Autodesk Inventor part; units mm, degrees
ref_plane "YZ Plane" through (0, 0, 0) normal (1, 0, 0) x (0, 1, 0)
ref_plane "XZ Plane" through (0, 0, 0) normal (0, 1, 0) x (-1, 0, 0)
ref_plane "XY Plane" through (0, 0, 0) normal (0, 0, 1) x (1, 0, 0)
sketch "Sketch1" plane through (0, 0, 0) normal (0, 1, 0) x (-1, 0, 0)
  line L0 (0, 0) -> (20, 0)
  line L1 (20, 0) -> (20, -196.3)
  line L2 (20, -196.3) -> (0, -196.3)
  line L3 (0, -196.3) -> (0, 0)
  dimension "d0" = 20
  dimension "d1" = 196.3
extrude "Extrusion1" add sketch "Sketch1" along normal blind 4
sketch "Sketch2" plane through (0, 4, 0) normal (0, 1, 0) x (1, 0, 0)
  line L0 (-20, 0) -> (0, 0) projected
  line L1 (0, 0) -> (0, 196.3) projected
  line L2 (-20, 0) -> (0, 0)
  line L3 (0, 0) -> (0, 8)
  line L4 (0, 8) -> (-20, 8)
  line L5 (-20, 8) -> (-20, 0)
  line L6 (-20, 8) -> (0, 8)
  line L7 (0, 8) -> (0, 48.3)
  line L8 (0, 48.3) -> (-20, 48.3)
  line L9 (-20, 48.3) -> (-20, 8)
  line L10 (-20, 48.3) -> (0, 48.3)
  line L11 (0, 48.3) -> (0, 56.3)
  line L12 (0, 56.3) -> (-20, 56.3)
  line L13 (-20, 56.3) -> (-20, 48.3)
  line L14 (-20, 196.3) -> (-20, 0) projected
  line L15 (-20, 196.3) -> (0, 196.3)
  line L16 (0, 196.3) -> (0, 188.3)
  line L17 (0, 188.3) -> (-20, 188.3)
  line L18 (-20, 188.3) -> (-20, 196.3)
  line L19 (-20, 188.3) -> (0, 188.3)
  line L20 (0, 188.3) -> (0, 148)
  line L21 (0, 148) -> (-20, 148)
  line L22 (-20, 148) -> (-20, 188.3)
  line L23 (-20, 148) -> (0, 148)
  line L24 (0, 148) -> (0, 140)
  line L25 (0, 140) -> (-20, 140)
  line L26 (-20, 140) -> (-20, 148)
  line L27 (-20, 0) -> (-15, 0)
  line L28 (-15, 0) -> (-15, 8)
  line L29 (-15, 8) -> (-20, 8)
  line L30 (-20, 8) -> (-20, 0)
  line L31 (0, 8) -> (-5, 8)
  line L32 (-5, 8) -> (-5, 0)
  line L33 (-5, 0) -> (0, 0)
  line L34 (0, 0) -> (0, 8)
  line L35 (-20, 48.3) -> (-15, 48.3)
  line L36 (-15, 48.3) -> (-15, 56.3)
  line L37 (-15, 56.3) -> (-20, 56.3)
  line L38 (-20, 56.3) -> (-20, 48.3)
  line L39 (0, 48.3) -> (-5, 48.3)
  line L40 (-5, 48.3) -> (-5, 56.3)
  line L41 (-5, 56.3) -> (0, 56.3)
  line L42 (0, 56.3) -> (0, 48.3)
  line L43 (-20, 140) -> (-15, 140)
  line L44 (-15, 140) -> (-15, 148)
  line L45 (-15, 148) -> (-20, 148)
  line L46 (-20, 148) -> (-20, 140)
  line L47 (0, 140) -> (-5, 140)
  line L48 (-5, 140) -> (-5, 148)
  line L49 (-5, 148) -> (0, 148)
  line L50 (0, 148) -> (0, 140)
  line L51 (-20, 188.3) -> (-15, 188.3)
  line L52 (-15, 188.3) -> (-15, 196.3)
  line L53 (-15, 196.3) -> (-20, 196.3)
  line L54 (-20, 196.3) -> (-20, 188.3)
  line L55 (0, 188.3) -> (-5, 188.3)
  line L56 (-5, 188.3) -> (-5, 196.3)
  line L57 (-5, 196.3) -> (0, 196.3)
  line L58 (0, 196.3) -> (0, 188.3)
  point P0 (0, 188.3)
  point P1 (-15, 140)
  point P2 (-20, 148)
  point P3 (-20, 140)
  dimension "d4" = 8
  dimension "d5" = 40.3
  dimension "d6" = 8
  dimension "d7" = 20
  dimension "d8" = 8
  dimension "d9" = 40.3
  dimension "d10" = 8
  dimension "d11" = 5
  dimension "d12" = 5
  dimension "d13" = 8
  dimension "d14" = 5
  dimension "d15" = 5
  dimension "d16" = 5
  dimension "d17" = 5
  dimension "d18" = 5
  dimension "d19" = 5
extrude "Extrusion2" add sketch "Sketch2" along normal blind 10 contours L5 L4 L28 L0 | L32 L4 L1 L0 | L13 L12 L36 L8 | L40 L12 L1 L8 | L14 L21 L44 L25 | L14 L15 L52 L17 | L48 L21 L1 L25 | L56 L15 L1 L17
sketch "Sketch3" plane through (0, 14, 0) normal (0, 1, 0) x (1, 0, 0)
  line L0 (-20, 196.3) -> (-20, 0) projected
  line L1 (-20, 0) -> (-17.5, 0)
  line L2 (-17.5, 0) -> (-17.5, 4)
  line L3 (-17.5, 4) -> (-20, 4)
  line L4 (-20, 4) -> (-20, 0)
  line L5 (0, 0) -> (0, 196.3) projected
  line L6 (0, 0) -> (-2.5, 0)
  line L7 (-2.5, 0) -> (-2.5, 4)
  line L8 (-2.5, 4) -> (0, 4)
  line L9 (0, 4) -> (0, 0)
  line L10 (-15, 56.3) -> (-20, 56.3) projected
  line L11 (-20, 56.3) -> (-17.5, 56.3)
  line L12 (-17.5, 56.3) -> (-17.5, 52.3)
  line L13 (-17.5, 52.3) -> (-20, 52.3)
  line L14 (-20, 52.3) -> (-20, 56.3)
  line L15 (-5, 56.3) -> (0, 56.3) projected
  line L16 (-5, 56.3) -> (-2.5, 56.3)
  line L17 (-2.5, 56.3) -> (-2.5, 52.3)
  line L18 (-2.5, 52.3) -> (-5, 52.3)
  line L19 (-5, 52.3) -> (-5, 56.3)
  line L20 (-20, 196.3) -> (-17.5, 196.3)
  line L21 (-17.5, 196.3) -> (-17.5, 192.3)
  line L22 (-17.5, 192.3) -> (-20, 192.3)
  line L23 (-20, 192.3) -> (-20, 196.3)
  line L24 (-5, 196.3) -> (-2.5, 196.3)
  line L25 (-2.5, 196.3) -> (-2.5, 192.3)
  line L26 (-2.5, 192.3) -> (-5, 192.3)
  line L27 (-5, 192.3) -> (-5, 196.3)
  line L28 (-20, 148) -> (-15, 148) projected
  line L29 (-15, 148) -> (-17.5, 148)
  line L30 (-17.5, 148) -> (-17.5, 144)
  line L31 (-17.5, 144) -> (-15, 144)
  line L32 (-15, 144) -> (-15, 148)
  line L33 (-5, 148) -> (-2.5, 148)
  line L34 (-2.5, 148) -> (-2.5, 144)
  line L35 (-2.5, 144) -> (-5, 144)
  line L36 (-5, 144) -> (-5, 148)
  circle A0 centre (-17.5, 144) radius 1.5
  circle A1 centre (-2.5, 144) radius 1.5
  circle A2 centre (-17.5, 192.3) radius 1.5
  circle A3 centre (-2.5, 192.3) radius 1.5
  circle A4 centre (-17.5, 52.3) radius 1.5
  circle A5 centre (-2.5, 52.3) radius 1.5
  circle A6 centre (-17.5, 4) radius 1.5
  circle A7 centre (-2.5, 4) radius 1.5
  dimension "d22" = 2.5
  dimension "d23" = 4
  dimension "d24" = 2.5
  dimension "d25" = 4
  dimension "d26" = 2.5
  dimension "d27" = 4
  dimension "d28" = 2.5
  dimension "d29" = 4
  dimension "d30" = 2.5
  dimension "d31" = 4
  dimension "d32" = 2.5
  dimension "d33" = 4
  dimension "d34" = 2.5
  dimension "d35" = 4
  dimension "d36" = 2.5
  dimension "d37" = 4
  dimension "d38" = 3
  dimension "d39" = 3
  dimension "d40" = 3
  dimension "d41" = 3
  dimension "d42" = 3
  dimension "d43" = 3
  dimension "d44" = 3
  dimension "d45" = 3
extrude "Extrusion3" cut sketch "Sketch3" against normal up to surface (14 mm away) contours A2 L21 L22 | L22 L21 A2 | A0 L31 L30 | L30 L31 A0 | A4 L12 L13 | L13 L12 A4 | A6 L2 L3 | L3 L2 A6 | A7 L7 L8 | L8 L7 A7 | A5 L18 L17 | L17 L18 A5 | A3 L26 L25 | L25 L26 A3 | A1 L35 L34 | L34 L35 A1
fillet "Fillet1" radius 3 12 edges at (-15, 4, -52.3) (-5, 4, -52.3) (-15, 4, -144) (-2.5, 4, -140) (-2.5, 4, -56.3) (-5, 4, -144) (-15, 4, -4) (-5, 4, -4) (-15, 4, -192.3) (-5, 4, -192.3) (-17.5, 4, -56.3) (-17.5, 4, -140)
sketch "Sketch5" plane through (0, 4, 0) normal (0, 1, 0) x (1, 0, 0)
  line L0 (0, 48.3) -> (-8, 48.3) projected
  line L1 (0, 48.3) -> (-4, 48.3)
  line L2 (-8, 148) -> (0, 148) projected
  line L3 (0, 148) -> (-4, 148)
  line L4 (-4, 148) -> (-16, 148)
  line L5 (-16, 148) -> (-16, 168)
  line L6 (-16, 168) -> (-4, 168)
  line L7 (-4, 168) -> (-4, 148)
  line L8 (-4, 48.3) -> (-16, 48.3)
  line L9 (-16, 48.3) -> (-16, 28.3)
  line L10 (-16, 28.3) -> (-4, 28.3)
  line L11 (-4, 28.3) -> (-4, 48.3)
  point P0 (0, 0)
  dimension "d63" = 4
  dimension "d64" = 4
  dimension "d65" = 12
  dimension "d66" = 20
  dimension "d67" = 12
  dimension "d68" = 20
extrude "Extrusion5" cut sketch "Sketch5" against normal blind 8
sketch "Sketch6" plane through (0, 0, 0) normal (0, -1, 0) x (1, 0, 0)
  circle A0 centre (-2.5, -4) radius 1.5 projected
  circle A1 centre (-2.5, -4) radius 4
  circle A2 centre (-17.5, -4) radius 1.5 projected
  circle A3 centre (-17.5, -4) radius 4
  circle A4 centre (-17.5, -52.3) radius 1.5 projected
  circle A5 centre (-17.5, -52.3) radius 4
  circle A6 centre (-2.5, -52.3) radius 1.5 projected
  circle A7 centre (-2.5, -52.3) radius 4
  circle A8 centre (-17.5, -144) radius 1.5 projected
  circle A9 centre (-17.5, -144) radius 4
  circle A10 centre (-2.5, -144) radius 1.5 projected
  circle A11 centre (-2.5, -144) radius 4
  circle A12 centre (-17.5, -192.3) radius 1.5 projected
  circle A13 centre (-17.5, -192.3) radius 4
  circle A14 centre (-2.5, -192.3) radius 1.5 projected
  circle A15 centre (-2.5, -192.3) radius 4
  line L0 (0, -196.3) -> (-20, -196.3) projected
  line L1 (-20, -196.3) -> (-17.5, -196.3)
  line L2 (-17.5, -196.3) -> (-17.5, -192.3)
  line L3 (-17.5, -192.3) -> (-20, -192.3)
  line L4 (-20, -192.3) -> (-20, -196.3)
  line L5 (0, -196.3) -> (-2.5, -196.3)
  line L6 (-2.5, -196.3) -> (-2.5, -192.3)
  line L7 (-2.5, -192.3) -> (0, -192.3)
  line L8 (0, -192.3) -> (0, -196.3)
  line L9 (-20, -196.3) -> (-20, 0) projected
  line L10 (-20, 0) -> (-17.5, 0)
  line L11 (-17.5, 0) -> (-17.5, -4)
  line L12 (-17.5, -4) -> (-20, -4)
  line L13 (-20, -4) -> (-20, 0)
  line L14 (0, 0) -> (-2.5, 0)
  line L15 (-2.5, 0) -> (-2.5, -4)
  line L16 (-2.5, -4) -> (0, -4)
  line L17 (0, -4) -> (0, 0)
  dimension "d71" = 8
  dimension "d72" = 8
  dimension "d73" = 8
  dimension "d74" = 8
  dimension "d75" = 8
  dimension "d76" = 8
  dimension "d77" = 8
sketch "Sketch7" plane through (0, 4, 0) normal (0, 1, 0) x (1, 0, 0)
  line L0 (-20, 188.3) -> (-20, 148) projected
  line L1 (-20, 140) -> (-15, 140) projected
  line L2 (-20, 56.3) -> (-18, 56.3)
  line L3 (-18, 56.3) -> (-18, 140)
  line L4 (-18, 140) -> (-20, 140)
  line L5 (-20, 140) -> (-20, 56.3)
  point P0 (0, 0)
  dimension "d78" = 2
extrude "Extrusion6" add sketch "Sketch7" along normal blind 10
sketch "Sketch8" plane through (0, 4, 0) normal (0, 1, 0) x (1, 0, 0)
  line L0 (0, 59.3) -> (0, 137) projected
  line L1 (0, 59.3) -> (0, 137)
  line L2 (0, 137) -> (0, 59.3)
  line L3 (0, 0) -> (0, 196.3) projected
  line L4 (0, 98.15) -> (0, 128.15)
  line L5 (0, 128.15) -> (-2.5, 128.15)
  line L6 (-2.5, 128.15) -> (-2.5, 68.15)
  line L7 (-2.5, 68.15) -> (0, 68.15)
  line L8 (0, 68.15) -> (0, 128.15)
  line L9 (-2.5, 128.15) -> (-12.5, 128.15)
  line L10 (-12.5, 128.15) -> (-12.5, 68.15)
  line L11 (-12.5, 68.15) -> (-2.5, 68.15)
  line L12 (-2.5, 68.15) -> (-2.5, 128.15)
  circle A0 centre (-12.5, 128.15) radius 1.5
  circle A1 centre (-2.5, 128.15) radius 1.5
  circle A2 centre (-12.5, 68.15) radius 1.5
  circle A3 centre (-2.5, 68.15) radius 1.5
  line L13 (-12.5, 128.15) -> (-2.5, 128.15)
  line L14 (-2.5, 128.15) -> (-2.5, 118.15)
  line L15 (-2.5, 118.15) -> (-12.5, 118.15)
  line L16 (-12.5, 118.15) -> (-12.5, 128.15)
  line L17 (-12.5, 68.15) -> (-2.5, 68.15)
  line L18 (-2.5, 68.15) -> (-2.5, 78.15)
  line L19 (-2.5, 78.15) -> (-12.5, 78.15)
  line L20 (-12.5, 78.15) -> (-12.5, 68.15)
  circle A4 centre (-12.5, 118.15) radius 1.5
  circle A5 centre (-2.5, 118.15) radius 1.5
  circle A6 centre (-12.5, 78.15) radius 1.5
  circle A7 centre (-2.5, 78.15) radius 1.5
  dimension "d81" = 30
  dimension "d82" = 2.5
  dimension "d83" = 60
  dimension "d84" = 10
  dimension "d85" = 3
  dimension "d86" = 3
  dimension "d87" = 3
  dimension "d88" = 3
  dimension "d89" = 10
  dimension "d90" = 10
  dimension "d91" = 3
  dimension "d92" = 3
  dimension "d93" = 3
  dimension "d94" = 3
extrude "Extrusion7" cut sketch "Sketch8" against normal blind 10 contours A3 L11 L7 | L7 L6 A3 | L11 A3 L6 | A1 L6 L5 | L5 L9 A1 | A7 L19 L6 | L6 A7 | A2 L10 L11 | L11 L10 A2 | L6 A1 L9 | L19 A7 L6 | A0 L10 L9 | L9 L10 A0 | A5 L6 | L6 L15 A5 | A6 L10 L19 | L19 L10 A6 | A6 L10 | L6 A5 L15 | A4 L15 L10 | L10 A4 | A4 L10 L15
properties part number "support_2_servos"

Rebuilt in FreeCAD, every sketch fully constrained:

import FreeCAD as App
import Part
import Sketcher

V = App.Vector
Q = App.Units.Quantity


def edges_at(feature, points):
    """Names of the edges that pass closest to the given points."""
    edges = feature.Shape.Edges
    near = lambda p: min(range(len(edges)), key=lambda i: edges[i].distToShape(Part.Vertex(*p))[0])
    return sorted({f"Edge{near(p) + 1}" for p in points})


def add_polygon(sketch, points):
    """Adds a closed chain of lines whose ends are joined by coincident constraints."""
    first, n = sketch.GeometryCount, len(points)
    for a, b in zip(points, points[1:] + points[:1]):
        sketch.addGeometry(Part.LineSegment(App.Vector(*a, 0), App.Vector(*b, 0)), False)
    for i in range(n):
        sketch.addConstraint(Sketcher.Constraint("Coincident", first + i, 2, first + (i + 1) % n, 1))

doc = App.newDocument("Part")
body = doc.addObject("PartDesign::Body", "Body")

# Sketch on XZ plane
sketch1 = body.newObject("Sketcher::SketchObject", "Sketch")
sketch1.AttachmentSupport = (doc.getObject("XZ_Plane"), [""])
sketch1.MapMode = "FlatFace"
add_polygon(sketch1, [(-20, 0), (0, 0), (0, -196), (-20, -196)])  # lines 0-3
sketch1.addConstraint(Sketcher.Constraint("Horizontal", 0))
sketch1.addConstraint(Sketcher.Constraint("Vertical", 1))
sketch1.addConstraint(Sketcher.Constraint("Horizontal", 2))
sketch1.addConstraint(Sketcher.Constraint("Vertical", 3))
sketch1.addConstraint(Sketcher.Constraint("Coincident", 0, 2, -1, 1))
sketch1.addConstraint(Sketcher.Constraint("DistanceX", 0, 1, 0, 2, Q("20 mm")))
sketch1.addConstraint(Sketcher.Constraint("DistanceY", 1, 2, 1, 1, Q("196.3 mm")))
pad1 = body.newObject("PartDesign::Pad", "Pad")
pad1.Profile = sketch1
pad1.Length = 4
pad1.Reversed = True

# Sketch on XZ plane
sketch2 = body.newObject("Sketcher::SketchObject", "Sketch001")
sketch2.AttachmentSupport = (doc.getObject("XZ_Plane"), [""])
sketch2.MapMode = "FlatFace"
sketch2.AttachmentOffset = App.Placement(V(0, 0, -4), App.Rotation())
add_polygon(sketch2, [(-20, -8), (-20, 0), (-15, 0), (-15, -8)])  # lines 0-3
add_polygon(sketch2, [(-5, -8), (-5, 0), (0, 0), (0, -8)])  # lines 4-7
add_polygon(sketch2, [(-20, -56), (-20, -48), (-15, -48), (-15, -56)])  # lines 8-11
add_polygon(sketch2, [(-5, -56), (-5, -48), (0, -48), (0, -56)])  # lines 12-15
add_polygon(sketch2, [(-20, -148), (-20, -140), (-15, -140), (-15, -148)])  # lines 16-19
add_polygon(sketch2, [(-20, -196), (-20, -188), (-15, -188), (-15, -196)])  # lines 20-23
add_polygon(sketch2, [(-5, -148), (-5, -140), (0, -140), (0, -148)])  # lines 24-27
add_polygon(sketch2, [(-5, -196), (-5, -188), (0, -188), (0, -196)])  # lines 28-31
sketch2.addConstraint(Sketcher.Constraint("Vertical", 0))
sketch2.addConstraint(Sketcher.Constraint("Horizontal", 1))
sketch2.addConstraint(Sketcher.Constraint("Vertical", 2))
sketch2.addConstraint(Sketcher.Constraint("Horizontal", 3))
sketch2.addConstraint(Sketcher.Constraint("Vertical", 4))
sketch2.addConstraint(Sketcher.Constraint("Horizontal", 5))
sketch2.addConstraint(Sketcher.Constraint("Vertical", 6))
sketch2.addConstraint(Sketcher.Constraint("Horizontal", 7))
sketch2.addConstraint(Sketcher.Constraint("Vertical", 8))
sketch2.addConstraint(Sketcher.Constraint("Horizontal", 9))
sketch2.addConstraint(Sketcher.Constraint("Vertical", 10))
sketch2.addConstraint(Sketcher.Constraint("Horizontal", 11))
sketch2.addConstraint(Sketcher.Constraint("Vertical", 12))
sketch2.addConstraint(Sketcher.Constraint("Horizontal", 13))
sketch2.addConstraint(Sketcher.Constraint("Vertical", 14))
sketch2.addConstraint(Sketcher.Constraint("Horizontal", 15))
sketch2.addConstraint(Sketcher.Constraint("Vertical", 16))
sketch2.addConstraint(Sketcher.Constraint("Horizontal", 17))
sketch2.addConstraint(Sketcher.Constraint("Vertical", 18))
sketch2.addConstraint(Sketcher.Constraint("Horizontal", 19))
sketch2.addConstraint(Sketcher.Constraint("Vertical", 20))
sketch2.addConstraint(Sketcher.Constraint("Horizontal", 21))
sketch2.addConstraint(Sketcher.Constraint("Vertical", 22))
sketch2.addConstraint(Sketcher.Constraint("Horizontal", 23))
sketch2.addConstraint(Sketcher.Constraint("Vertical", 24))
sketch2.addConstraint(Sketcher.Constraint("Horizontal", 25))
sketch2.addConstraint(Sketcher.Constraint("Vertical", 26))
sketch2.addConstraint(Sketcher.Constraint("Horizontal", 27))
sketch2.addConstraint(Sketcher.Constraint("Vertical", 28))
sketch2.addConstraint(Sketcher.Constraint("Horizontal", 29))
sketch2.addConstraint(Sketcher.Constraint("Vertical", 30))
sketch2.addConstraint(Sketcher.Constraint("Horizontal", 31))
sketch2.addConstraint(Sketcher.Constraint("Coincident", 5, 2, -1, 1))
sketch2.addConstraint(Sketcher.Constraint("PointOnObject", 0, 2, -1))
sketch2.addConstraint(Sketcher.Constraint("PointOnObject", 13, 2, -2))
sketch2.addConstraint(Sketcher.Constraint("PointOnObject", 25, 2, -2))
sketch2.addConstraint(Sketcher.Constraint("PointOnObject", 29, 2, -2))
sketch2.addConstraint(Sketcher.Constraint("Horizontal", 3, 2, 6, 2))
sketch2.addConstraint(Sketcher.Constraint("Horizontal", 9, 2, 12, 2))
sketch2.addConstraint(Sketcher.Constraint("Horizontal", 11, 2, 14, 2))
sketch2.addConstraint(Sketcher.Constraint("Horizontal", 17, 2, 24, 2))
sketch2.addConstraint(Sketcher.Constraint("Horizontal", 19, 2, 26, 2))
sketch2.addConstraint(Sketcher.Constraint("Horizontal", 21, 2, 28, 2))
sketch2.addConstraint(Sketcher.Constraint("Horizontal", 23, 2, 30, 2))
sketch2.addConstraint(Sketcher.Constraint("Vertical", 3, 2, 8, 2))
sketch2.addConstraint(Sketcher.Constraint("Vertical", 2, 2, 9, 2))
sketch2.addConstraint(Sketcher.Constraint("Vertical", 7, 2, 12, 2))
sketch2.addConstraint(Sketcher.Constraint("Vertical", 11, 2, 16, 2))
sketch2.addConstraint(Sketcher.Constraint("Vertical", 10, 2, 17, 2))
sketch2.addConstraint(Sketcher.Constraint("Vertical", 19, 2, 20, 2))
sketch2.addConstraint(Sketcher.Constraint("Vertical", 18, 2, 21, 2))
sketch2.addConstraint(Sketcher.Constraint("Vertical", 15, 2, 24, 2))
sketch2.addConstraint(Sketcher.Constraint("Vertical", 27, 2, 28, 2))
sketch2.addConstraint(Sketcher.Constraint("Equal", 3, 5))
sketch2.addConstraint(Sketcher.Constraint("Equal", 6, 8))
sketch2.addConstraint(Sketcher.Constraint("Equal", 14, 16))
sketch2.addConstraint(Sketcher.Constraint("Equal", 18, 20))
sketch2.addConstraint(Sketcher.Constraint("DistanceX", 1, 1, 1, 2, Q("5 mm")))
sketch2.addConstraint(Sketcher.Constraint("DistanceY", 0, 1, 0, 2, Q("8 mm")))
sketch2.addConstraint(Sketcher.Constraint("DistanceX", 0, 2, -1, 1, Q("20 mm")))
sketch2.addConstraint(Sketcher.Constraint("DistanceY", 8, 2, 3, 2, Q("40.3 mm")))
sketch2.addConstraint(Sketcher.Constraint("DistanceY", 20, 2, 19, 2, Q("40.3 mm")))
sketch2.addConstraint(Sketcher.Constraint("DistanceY", 16, 2, -1, 1, Q("140 mm")))
pad2 = body.newObject("PartDesign::Pad", "Pad001")
pad2.Profile = sketch2
pad2.Length = 10
pad2.Reversed = True

# Sketch on XZ plane
sketch3 = body.newObject("Sketcher::SketchObject", "Sketch002")
sketch3.AttachmentSupport = (doc.getObject("XZ_Plane"), [""])
sketch3.MapMode = "FlatFace"
sketch3.AttachmentOffset = App.Placement(V(0, 0, -14), App.Rotation())
sketch3.addGeometry(Part.Circle(V(-17.5, -192.3, 0), V(0, 0, 1), 1.5), False)
sketch3.addGeometry(Part.Circle(V(-17.5, -144, 0), V(0, 0, 1), 1.5), False)
sketch3.addGeometry(Part.Circle(V(-17.5, -52.3, 0), V(0, 0, 1), 1.5), False)
sketch3.addGeometry(Part.Circle(V(-17.5, -4, 0), V(0, 0, 1), 1.5), False)
sketch3.addGeometry(Part.Circle(V(-2.5, -4, 0), V(0, 0, 1), 1.5), False)
sketch3.addGeometry(Part.Circle(V(-2.5, -52.3, 0), V(0, 0, 1), 1.5), False)
sketch3.addGeometry(Part.Circle(V(-2.5, -192.3, 0), V(0, 0, 1), 1.5), False)
sketch3.addGeometry(Part.Circle(V(-2.5, -144, 0), V(0, 0, 1), 1.5), False)
sketch3.addConstraint(Sketcher.Constraint("Equal", 0, 1))
sketch3.addConstraint(Sketcher.Constraint("Equal", 1, 2))
sketch3.addConstraint(Sketcher.Constraint("Equal", 2, 3))
sketch3.addConstraint(Sketcher.Constraint("Equal", 3, 4))
sketch3.addConstraint(Sketcher.Constraint("Equal", 4, 5))
sketch3.addConstraint(Sketcher.Constraint("Equal", 5, 6))
sketch3.addConstraint(Sketcher.Constraint("Equal", 6, 7))
sketch3.addConstraint(Sketcher.Constraint("Horizontal", 3, 3, 4, 3))
sketch3.addConstraint(Sketcher.Constraint("Horizontal", 2, 3, 5, 3))
sketch3.addConstraint(Sketcher.Constraint("Horizontal", 0, 3, 6, 3))
sketch3.addConstraint(Sketcher.Constraint("Horizontal", 1, 3, 7, 3))
sketch3.addConstraint(Sketcher.Constraint("Vertical", 0, 3, 1, 3))
sketch3.addConstraint(Sketcher.Constraint("Vertical", 1, 3, 2, 3))
sketch3.addConstraint(Sketcher.Constraint("Vertical", 2, 3, 3, 3))
sketch3.addConstraint(Sketcher.Constraint("Vertical", 4, 3, 5, 3))
sketch3.addConstraint(Sketcher.Constraint("Vertical", 5, 3, 6, 3))
sketch3.addConstraint(Sketcher.Constraint("Vertical", 6, 3, 7, 3))
sketch3.addConstraint(Sketcher.Constraint("Diameter", 0, Q("3 mm")))
sketch3.addConstraint(Sketcher.Constraint("DistanceY", 3, 3, -1, 1, Q("4 mm")))
sketch3.addConstraint(Sketcher.Constraint("DistanceX", 4, 3, -1, 1, Q("2.5 mm")))
sketch3.addConstraint(Sketcher.Constraint("DistanceY", 1, 3, -1, 1, Q("144 mm")))
sketch3.addConstraint(Sketcher.Constraint("DistanceY", 0, 3, 2, 3, Q("140 mm")))
sketch3.addConstraint(Sketcher.Constraint("DistanceX", 3, 3, 4, 3, Q("15 mm")))
sketch3.addConstraint(Sketcher.Constraint("DistanceY", 0, 3, -1, 1, Q("192.3 mm")))
pocket1 = body.newObject("PartDesign::Pocket", "Pocket")
pocket1.Profile = sketch3
pocket1.Length = 14
pocket1.Reversed = True
doc.recompute()

fillet = body.newObject("PartDesign::Fillet", "Fillet")
fillet.Base = (pocket1, edges_at(pocket1, [
    (-15, 4, -52.3),
    (-5, 4, -52.3),
    (-15, 4, -144),
    (-2.5, 4, -140),
    (-2.5, 4, -56.3),
    (-5, 4, -144),
    (-15, 4, -4),
    (-5, 4, -4),
    (-15, 4, -192.3),
    (-5, 4, -192.3),
    (-17.5, 4, -56.3),
    (-17.5, 4, -140),
]))
fillet.Radius = 3

# Sketch on XZ plane
sketch4 = body.newObject("Sketcher::SketchObject", "Sketch003")
sketch4.AttachmentSupport = (doc.getObject("XZ_Plane"), [""])
sketch4.MapMode = "FlatFace"
sketch4.AttachmentOffset = App.Placement(V(0, 0, -4), App.Rotation())
add_polygon(sketch4, [(-4, -28), (-4, -48), (-16, -48), (-16, -28)])  # lines 0-3
add_polygon(sketch4, [(-16, -148), (-4, -148), (-4, -168), (-16, -168)])  # lines 4-7
sketch4.addConstraint(Sketcher.Constraint("Vertical", 0))
sketch4.addConstraint(Sketcher.Constraint("Horizontal", 1))
sketch4.addConstraint(Sketcher.Constraint("Vertical", 2))
sketch4.addConstraint(Sketcher.Constraint("Horizontal", 3))
sketch4.addConstraint(Sketcher.Constraint("Horizontal", 4))
sketch4.addConstraint(Sketcher.Constraint("Vertical", 5))
sketch4.addConstraint(Sketcher.Constraint("Horizontal", 6))
sketch4.addConstraint(Sketcher.Constraint("Vertical", 7))
sketch4.addConstraint(Sketcher.Constraint("Vertical", 3, 2, 4, 2))
sketch4.addConstraint(Sketcher.Constraint("Vertical", 2, 2, 6, 2))
sketch4.addConstraint(Sketcher.Constraint("Equal", 2, 5))
sketch4.addConstraint(Sketcher.Constraint("DistanceX", 1, 2, 1, 1, Q("12 mm")))
sketch4.addConstraint(Sketcher.Constraint("DistanceY", 0, 2, 0, 1, Q("20 mm")))
sketch4.addConstraint(Sketcher.Constraint("DistanceX", 0, 2, -1, 1, Q("4 mm")))
sketch4.addConstraint(Sketcher.Constraint("DistanceY", 4, 2, -1, 1, Q("148 mm")))
sketch4.addConstraint(Sketcher.Constraint("DistanceY", 0, 2, -1, 1, Q("48.3 mm")))
pocket2 = body.newObject("PartDesign::Pocket", "Pocket001")
pocket2.Profile = sketch4
pocket2.Length = 8
pocket2.Reversed = True

# Sketch on XZ plane
sketch5 = body.newObject("Sketcher::SketchObject", "Sketch004")
sketch5.AttachmentSupport = (doc.getObject("XZ_Plane"), [""])
sketch5.MapMode = "FlatFace"
sketch5.AttachmentOffset = App.Placement(V(0, 0, -4), App.Rotation())
add_polygon(sketch5, [(-18, -140), (-20, -140), (-20, -56.3), (-18, -56.3)])  # lines 0-3
sketch5.addConstraint(Sketcher.Constraint("Horizontal", 0))
sketch5.addConstraint(Sketcher.Constraint("Vertical", 1))
sketch5.addConstraint(Sketcher.Constraint("Horizontal", 2))
sketch5.addConstraint(Sketcher.Constraint("Vertical", 3))
sketch5.addConstraint(Sketcher.Constraint("DistanceX", 0, 2, 0, 1, Q("2 mm")))
sketch5.addConstraint(Sketcher.Constraint("DistanceY", 1, 1, 1, 2, Q("83.7 mm")))
sketch5.addConstraint(Sketcher.Constraint("DistanceX", 0, 2, -1, 1, Q("20 mm")))
sketch5.addConstraint(Sketcher.Constraint("DistanceY", 0, 2, -1, 1, Q("140 mm")))
pad3 = body.newObject("PartDesign::Pad", "Pad002")
pad3.Profile = sketch5
pad3.Length = 10
pad3.Reversed = True

# Sketch on XZ plane
sketch6 = body.newObject("Sketcher::SketchObject", "Sketch005")
sketch6.AttachmentSupport = (doc.getObject("XZ_Plane"), [""])
sketch6.MapMode = "FlatFace"
sketch6.AttachmentOffset = App.Placement(V(0, 0, -4), App.Rotation())
sketch6.addGeometry(Part.Circle(V(-2.5, -68.2, 0), V(0, 0, 1), 1.5), False)
sketch6.addGeometry(Part.Circle(V(-2.5, -128.2, 0), V(0, 0, 1), 1.5), False)
sketch6.addGeometry(Part.Circle(V(-2.5, -78.2, 0), V(0, 0, 1), 1.5), False)
sketch6.addGeometry(Part.Circle(V(-12.5, -68.2, 0), V(0, 0, 1), 1.5), False)
sketch6.addGeometry(Part.Circle(V(-12.5, -128.2, 0), V(0, 0, 1), 1.5), False)
sketch6.addGeometry(Part.Circle(V(-2.5, -118.2, 0), V(0, 0, 1), 1.5), False)
sketch6.addGeometry(Part.Circle(V(-12.5, -78.2, 0), V(0, 0, 1), 1.5), False)
sketch6.addGeometry(Part.Circle(V(-12.5, -118.2, 0), V(0, 0, 1), 1.5), False)
sketch6.addConstraint(Sketcher.Constraint("Equal", 0, 1))
sketch6.addConstraint(Sketcher.Constraint("Equal", 1, 2))
sketch6.addConstraint(Sketcher.Constraint("Equal", 2, 3))
sketch6.addConstraint(Sketcher.Constraint("Equal", 3, 4))
sketch6.addConstraint(Sketcher.Constraint("Equal", 4, 5))
sketch6.addConstraint(Sketcher.Constraint("Equal", 5, 6))
sketch6.addConstraint(Sketcher.Constraint("Equal", 6, 7))
sketch6.addConstraint(Sketcher.Constraint("Horizontal", 0, 3, 3, 3))
sketch6.addConstraint(Sketcher.Constraint("Horizontal", 1, 3, 4, 3))
sketch6.addConstraint(Sketcher.Constraint("Horizontal", 2, 3, 6, 3))
sketch6.addConstraint(Sketcher.Constraint("Horizontal", 5, 3, 7, 3))
sketch6.addConstraint(Sketcher.Constraint("Vertical", 0, 3, 1, 3))
sketch6.addConstraint(Sketcher.Constraint("Vertical", 1, 3, 2, 3))
sketch6.addConstraint(Sketcher.Constraint("Vertical", 3, 3, 4, 3))
sketch6.addConstraint(Sketcher.Constraint("Vertical", 2, 3, 5, 3))
sketch6.addConstraint(Sketcher.Constraint("Vertical", 4, 3, 6, 3))
sketch6.addConstraint(Sketcher.Constraint("Vertical", 6, 3, 7, 3))
sketch6.addConstraint(Sketcher.Constraint("Diameter", 0, Q("3 mm")))
sketch6.addConstraint(Sketcher.Constraint("DistanceY", 1, 3, 0, 3, Q("60 mm")))
sketch6.addConstraint(Sketcher.Constraint("DistanceY", 2, 3, 0, 3, Q("10 mm")))
sketch6.addConstraint(Sketcher.Constraint("DistanceX", 3, 3, 0, 3, Q("10 mm")))
sketch6.addConstraint(Sketcher.Constraint("DistanceY", 1, 3, 5, 3, Q("10 mm")))
sketch6.addConstraint(Sketcher.Constraint("DistanceX", 0, 3, -1, 1, Q("2.5 mm")))
sketch6.addConstraint(Sketcher.Constraint("DistanceY", 0, 3, -1, 1, Q("68.15 mm")))
pocket3 = body.newObject("PartDesign::Pocket", "Pocket002")
pocket3.Profile = sketch6
pocket3.Length = 10
pocket3.Reversed = True

doc.recompute()
